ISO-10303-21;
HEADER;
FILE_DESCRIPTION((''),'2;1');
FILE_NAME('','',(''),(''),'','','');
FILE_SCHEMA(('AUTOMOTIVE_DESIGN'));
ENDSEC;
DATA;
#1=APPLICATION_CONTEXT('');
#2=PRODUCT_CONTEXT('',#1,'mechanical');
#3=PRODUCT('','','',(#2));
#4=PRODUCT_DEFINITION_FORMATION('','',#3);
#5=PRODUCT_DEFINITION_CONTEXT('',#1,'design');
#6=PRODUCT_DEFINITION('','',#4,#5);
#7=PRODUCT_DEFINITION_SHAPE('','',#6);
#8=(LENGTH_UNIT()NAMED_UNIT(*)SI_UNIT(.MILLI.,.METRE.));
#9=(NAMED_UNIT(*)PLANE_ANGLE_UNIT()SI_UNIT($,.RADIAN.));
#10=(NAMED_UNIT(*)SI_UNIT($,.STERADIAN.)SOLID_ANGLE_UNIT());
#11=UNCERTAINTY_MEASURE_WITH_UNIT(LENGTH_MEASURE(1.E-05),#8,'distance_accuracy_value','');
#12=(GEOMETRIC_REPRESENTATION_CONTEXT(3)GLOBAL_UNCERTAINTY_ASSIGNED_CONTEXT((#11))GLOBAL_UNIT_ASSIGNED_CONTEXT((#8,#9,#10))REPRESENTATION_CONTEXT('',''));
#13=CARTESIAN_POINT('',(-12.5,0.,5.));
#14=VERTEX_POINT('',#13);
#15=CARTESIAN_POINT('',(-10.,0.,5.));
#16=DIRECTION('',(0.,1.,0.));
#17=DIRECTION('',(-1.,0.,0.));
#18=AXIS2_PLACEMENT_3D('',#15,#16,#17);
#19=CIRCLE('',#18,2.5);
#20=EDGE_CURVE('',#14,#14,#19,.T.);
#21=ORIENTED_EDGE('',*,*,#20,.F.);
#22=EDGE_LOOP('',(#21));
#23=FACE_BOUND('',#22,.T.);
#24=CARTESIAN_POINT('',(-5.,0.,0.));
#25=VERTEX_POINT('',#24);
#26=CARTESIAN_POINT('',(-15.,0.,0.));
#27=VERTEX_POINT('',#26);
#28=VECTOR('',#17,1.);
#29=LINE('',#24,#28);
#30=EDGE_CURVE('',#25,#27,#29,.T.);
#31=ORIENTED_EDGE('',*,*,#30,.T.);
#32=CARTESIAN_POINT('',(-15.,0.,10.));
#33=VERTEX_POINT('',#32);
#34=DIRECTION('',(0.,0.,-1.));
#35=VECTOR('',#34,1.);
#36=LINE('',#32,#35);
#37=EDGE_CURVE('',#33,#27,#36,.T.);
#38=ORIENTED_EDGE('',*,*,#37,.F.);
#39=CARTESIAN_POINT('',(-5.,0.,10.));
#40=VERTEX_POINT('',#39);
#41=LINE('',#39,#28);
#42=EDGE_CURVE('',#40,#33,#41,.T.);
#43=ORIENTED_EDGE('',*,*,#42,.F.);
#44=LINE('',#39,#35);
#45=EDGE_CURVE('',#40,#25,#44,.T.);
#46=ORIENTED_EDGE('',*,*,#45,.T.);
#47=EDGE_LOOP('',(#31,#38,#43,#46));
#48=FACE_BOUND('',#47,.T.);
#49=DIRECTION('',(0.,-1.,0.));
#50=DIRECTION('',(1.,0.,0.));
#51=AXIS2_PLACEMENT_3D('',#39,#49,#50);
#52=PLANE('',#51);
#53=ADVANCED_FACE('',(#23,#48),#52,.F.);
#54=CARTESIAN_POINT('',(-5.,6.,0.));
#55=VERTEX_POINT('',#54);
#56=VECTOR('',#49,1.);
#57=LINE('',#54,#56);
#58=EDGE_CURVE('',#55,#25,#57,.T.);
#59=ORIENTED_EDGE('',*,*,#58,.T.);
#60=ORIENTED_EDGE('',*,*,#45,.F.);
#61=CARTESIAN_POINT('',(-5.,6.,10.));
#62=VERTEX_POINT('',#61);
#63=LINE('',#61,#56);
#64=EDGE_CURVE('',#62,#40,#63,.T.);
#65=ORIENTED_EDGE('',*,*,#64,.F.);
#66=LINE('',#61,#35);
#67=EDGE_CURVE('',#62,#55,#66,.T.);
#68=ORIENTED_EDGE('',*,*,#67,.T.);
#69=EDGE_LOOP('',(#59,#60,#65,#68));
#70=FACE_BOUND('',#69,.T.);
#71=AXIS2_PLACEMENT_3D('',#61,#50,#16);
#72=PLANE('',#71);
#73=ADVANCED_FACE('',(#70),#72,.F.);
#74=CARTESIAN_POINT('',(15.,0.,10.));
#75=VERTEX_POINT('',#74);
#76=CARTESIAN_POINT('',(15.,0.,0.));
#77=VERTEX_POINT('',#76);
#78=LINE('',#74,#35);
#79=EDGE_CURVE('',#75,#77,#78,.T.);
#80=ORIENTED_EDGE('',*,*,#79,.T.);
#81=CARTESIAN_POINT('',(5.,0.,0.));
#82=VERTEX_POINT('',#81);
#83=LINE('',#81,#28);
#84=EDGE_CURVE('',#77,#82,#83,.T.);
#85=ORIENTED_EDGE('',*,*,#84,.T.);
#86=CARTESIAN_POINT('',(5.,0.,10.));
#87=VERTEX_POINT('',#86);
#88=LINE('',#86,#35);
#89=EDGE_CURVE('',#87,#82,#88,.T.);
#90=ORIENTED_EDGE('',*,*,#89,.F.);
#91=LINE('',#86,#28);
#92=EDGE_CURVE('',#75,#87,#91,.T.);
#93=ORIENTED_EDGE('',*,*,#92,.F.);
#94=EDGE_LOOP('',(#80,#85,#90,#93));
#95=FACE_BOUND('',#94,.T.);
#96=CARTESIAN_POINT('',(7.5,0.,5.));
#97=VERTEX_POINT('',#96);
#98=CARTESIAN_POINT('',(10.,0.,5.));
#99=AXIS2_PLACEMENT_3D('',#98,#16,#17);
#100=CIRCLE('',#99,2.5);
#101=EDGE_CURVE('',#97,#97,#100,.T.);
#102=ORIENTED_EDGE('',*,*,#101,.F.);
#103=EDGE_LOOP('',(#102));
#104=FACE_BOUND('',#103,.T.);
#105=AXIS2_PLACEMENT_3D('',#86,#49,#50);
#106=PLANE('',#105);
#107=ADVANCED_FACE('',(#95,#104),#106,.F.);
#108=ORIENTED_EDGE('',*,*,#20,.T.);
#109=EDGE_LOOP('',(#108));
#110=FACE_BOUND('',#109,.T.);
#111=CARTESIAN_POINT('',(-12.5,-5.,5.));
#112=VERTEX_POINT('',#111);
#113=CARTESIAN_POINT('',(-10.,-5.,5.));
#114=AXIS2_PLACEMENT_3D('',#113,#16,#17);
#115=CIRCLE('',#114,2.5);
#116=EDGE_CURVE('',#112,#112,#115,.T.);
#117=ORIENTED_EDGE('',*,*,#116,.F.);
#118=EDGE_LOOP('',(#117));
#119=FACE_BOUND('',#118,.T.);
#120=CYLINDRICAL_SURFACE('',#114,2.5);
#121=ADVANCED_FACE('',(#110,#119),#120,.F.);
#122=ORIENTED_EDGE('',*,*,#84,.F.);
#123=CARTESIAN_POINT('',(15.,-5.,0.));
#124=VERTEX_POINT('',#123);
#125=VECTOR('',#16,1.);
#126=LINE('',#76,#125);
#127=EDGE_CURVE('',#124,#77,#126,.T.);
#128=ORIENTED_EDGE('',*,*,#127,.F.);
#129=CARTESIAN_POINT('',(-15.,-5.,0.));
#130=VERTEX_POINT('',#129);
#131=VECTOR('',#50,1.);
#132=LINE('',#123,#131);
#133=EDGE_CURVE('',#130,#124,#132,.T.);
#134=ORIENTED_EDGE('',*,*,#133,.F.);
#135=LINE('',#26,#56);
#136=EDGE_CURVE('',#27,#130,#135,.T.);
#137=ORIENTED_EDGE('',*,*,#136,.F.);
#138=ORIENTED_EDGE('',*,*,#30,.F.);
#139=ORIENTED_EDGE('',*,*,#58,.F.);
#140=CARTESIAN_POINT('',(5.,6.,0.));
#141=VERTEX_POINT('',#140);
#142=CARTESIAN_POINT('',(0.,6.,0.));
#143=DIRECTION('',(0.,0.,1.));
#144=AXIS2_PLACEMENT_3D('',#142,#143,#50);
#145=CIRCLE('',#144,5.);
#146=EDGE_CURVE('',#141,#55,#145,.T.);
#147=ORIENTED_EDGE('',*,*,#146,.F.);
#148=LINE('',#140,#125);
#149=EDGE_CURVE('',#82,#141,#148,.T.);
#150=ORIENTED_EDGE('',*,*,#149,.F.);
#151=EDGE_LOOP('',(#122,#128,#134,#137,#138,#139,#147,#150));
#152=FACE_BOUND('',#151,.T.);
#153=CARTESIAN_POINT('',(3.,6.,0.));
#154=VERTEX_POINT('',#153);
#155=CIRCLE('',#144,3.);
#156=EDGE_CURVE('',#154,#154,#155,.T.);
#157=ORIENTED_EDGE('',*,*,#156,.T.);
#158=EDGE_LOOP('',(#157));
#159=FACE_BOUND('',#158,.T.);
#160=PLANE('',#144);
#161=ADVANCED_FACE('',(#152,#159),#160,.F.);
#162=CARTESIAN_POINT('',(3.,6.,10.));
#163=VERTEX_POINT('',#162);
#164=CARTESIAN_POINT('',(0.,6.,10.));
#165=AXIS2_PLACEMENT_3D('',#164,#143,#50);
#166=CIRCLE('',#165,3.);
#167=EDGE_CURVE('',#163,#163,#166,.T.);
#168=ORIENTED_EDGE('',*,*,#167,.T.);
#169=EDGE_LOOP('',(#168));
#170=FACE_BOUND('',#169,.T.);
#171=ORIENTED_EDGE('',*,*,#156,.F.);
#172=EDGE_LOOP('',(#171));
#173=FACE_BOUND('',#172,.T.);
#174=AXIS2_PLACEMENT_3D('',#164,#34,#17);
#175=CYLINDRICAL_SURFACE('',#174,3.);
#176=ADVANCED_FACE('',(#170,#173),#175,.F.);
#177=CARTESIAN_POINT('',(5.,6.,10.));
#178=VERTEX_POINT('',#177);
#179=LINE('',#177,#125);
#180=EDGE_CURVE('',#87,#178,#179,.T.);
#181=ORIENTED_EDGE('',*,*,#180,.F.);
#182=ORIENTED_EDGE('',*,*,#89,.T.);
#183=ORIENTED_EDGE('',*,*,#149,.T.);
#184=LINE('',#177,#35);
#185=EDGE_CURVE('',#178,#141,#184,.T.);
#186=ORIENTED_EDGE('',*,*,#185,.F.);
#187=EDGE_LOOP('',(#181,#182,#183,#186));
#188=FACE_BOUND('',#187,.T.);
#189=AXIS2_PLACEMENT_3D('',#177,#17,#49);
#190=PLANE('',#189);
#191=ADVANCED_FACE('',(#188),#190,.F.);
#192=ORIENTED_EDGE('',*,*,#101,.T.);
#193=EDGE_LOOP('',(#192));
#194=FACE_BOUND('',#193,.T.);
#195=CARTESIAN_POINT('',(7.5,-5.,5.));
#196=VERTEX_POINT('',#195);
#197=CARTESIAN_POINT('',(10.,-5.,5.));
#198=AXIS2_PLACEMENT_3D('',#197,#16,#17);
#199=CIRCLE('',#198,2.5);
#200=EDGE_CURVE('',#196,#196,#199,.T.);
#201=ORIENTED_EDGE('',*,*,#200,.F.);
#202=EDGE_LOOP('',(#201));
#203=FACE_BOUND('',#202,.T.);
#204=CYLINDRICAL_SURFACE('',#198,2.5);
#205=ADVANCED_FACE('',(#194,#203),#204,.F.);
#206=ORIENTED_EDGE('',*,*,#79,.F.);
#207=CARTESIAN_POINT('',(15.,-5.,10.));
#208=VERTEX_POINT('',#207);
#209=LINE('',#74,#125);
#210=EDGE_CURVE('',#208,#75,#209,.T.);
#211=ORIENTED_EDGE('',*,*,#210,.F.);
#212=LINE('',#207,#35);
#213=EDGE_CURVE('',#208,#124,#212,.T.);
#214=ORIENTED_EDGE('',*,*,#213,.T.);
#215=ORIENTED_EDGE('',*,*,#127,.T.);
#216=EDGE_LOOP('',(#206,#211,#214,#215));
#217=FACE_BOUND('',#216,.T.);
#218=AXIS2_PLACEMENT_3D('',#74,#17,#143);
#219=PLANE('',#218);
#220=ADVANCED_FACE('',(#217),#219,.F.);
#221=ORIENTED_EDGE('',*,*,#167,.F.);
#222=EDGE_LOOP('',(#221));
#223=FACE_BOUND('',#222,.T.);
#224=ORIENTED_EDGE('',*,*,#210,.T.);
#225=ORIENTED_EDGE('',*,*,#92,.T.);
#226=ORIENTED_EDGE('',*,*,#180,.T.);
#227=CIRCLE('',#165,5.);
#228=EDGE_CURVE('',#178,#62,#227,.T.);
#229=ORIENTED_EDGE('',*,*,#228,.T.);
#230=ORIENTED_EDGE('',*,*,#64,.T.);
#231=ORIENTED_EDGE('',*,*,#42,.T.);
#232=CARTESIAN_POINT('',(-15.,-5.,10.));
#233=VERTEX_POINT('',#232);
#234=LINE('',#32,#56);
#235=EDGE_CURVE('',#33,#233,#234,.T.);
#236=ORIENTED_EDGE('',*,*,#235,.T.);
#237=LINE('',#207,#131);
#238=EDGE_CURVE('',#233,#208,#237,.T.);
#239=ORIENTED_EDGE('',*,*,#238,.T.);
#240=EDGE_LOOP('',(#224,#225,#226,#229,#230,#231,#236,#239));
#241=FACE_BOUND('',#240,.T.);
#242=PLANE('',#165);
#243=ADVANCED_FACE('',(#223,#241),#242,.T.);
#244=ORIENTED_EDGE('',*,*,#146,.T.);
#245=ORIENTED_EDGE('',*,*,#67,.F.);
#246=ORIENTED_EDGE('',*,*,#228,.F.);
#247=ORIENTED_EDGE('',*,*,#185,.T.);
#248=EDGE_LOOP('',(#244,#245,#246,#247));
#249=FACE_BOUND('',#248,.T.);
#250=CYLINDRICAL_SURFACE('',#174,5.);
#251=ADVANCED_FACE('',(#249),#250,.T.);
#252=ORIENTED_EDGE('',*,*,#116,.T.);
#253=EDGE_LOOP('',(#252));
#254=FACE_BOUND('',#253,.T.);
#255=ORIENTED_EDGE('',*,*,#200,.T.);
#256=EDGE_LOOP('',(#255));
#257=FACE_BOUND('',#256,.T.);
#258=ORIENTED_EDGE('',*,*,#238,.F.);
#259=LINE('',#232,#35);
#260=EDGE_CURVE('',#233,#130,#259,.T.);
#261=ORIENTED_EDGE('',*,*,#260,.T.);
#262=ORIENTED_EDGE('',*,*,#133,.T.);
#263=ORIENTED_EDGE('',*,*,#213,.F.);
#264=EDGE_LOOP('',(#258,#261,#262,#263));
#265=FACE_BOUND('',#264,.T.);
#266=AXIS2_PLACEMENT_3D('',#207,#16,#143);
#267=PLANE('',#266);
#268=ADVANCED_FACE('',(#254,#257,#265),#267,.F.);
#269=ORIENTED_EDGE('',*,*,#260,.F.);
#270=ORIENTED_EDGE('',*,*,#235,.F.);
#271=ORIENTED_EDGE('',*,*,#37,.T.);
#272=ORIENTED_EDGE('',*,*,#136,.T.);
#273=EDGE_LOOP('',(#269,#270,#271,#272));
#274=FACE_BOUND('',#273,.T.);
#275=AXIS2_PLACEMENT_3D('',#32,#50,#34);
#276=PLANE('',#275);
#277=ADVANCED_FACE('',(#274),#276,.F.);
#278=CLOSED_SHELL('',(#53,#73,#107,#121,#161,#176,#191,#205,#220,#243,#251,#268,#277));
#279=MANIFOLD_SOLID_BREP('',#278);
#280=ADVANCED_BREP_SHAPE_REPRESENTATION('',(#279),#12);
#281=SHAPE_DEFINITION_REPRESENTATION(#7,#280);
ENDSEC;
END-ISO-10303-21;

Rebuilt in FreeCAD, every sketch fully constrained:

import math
import FreeCAD as App
import Part
import Sketcher
from FreeCAD import Vector
Q = App.Units.Quantity

doc = App.newDocument("Part")
params = doc.addObject("Spreadsheet::Sheet", "Params")
for row, (alias, value) in enumerate([
    ("sketch1_diameter", "6 mm"),
    ("sketch1_radius", "5 mm"),
    ("sketch1_width", "10 mm"),
    ("sketch1_height", "6 mm"),
    ("sketch1_height2", "5 mm"),
    ("pad1_length", "10 mm"),
    ("sketch2_diameter", "5 mm"),
    ("pocket1_length", "5 mm"),
    ("sketch3_diameter", "5 mm"),
    ("pocket2_length", "5 mm"),
], start=1):
    params.set(f"A{row}", alias)
    params.set(f"B{row}", "=" + value)
    params.setAlias(f"B{row}", alias)

body = doc.addObject("PartDesign::Body", "Body")

# Sketch on XY plane
sketch1 = body.newObject("Sketcher::SketchObject", "Sketch")
sketch1.AttachmentSupport = (doc.getObject("XY_Plane"), [""])
sketch1.MapMode = "FlatFace"
sketch1.addGeometry([
    Part.LineSegment(Vector(15, 0, 0), Vector(5, 0, 0)),  # 0
    Part.LineSegment(Vector(5, 0, 0), Vector(5, 6, 0)),  # 1
    Part.ArcOfCircle(Part.Circle(Vector(0, 6, 0), Vector(0, 0, 1), 5), math.radians(0), math.radians(180)),  # 2
    Part.LineSegment(Vector(-5, 6, 0), Vector(-5, 0, 0)),  # 3
    Part.LineSegment(Vector(-5, 0, 0), Vector(-15, 0, 0)),  # 4
    Part.LineSegment(Vector(-15, 0, 0), Vector(-15, -5, 0)),  # 5
    Part.LineSegment(Vector(-15, -5, 0), Vector(15, -5, 0)),  # 6
    Part.LineSegment(Vector(15, -5, 0), Vector(15, 0, 0)),  # 7
    Part.Circle(Vector(0, 6, 0), Vector(0, 0, 1), 3),  # 8
], False)
sketch1.addConstraint([
    Sketcher.Constraint("Coincident", 0, 2, 1, 1),
    Sketcher.Constraint("Tangent", 1, 2, 2, 1),
    Sketcher.Constraint("Tangent", 2, 2, 3, 1),
    Sketcher.Constraint("Coincident", 3, 2, 4, 1),
    Sketcher.Constraint("Coincident", 4, 2, 5, 1),
    Sketcher.Constraint("Coincident", 5, 2, 6, 1),
    Sketcher.Constraint("Coincident", 6, 2, 7, 1),
    Sketcher.Constraint("Coincident", 7, 2, 0, 1),
    Sketcher.Constraint("Horizontal", 0),
    Sketcher.Constraint("Vertical", 1),
    Sketcher.Constraint("Vertical", 3),
    Sketcher.Constraint("Horizontal", 4),
    Sketcher.Constraint("Vertical", 5),
    Sketcher.Constraint("Horizontal", 6),
    Sketcher.Constraint("Vertical", 7),
    Sketcher.Constraint("Coincident", 8, 3, 2, 3),
    Sketcher.Constraint("Symmetric", 0, 2, 3, 2, -1, 1),
    Sketcher.Constraint("Symmetric", 4, 2, 7, 2, -2),
    Sketcher.Constraint("Diameter", 8, Q("6 mm")),
    Sketcher.Constraint("Radius", 2, Q("5 mm")),
    Sketcher.Constraint("DistanceX", 0, 2, 0, 1, Q("10 mm")),
    Sketcher.Constraint("DistanceY", 1, 1, 1, 2, Q("6 mm")),
    Sketcher.Constraint("DistanceY", 5, 2, 5, 1, Q("5 mm")),
])
sketch1.setExpression("Constraints[18]", "Params.sketch1_diameter")
sketch1.setExpression("Constraints[19]", "Params.sketch1_radius")
sketch1.setExpression("Constraints[20]", "Params.sketch1_width")
sketch1.setExpression("Constraints[21]", "Params.sketch1_height")
sketch1.setExpression("Constraints[22]", "Params.sketch1_height2")
pad1 = body.newObject("PartDesign::Pad", "Pad")
pad1.Profile = sketch1
pad1.setExpression("Length", "Params.pad1_length")

# Sketch on XZ plane
sketch2 = body.newObject("Sketcher::SketchObject", "Sketch001")
sketch2.AttachmentSupport = (doc.getObject("XZ_Plane"), [""])
sketch2.MapMode = "FlatFace"
sketch2.addGeometry(Part.Circle(Vector(-10, 5, 0), Vector(0, 0, 1), 2.5), False)
sketch2.addConstraint([
    Sketcher.Constraint("Diameter", 0, Q("5 mm")),
    Sketcher.Constraint("DistanceX", 0, 3, -1, 1, Q("10 mm")),
    Sketcher.Constraint("DistanceY", -1, 1, 0, 3, Q("5 mm")),
])
sketch2.setExpression("Constraints[0]", "Params.sketch2_diameter")
pocket1 = body.newObject("PartDesign::Pocket", "Pocket")
pocket1.Profile = sketch2
pocket1.setExpression("Length", "Params.pocket1_length")
pocket1.Reversed = True

# Sketch on XZ plane
sketch3 = body.newObject("Sketcher::SketchObject", "Sketch002")
sketch3.AttachmentSupport = (doc.getObject("XZ_Plane"), [""])
sketch3.MapMode = "FlatFace"
sketch3.addGeometry(Part.Circle(Vector(10, 5, 0), Vector(0, 0, 1), 2.5), False)
sketch3.addConstraint([
    Sketcher.Constraint("Diameter", 0, Q("5 mm")),
    Sketcher.Constraint("DistanceX", -1, 1, 0, 3, Q("10 mm")),
    Sketcher.Constraint("DistanceY", -1, 1, 0, 3, Q("5 mm")),
])
sketch3.setExpression("Constraints[0]", "Params.sketch3_diameter")
pocket2 = body.newObject("PartDesign::Pocket", "Pocket001")
pocket2.Profile = sketch3
pocket2.setExpression("Length", "Params.pocket2_length")
pocket2.Reversed = True

doc.recompute()
